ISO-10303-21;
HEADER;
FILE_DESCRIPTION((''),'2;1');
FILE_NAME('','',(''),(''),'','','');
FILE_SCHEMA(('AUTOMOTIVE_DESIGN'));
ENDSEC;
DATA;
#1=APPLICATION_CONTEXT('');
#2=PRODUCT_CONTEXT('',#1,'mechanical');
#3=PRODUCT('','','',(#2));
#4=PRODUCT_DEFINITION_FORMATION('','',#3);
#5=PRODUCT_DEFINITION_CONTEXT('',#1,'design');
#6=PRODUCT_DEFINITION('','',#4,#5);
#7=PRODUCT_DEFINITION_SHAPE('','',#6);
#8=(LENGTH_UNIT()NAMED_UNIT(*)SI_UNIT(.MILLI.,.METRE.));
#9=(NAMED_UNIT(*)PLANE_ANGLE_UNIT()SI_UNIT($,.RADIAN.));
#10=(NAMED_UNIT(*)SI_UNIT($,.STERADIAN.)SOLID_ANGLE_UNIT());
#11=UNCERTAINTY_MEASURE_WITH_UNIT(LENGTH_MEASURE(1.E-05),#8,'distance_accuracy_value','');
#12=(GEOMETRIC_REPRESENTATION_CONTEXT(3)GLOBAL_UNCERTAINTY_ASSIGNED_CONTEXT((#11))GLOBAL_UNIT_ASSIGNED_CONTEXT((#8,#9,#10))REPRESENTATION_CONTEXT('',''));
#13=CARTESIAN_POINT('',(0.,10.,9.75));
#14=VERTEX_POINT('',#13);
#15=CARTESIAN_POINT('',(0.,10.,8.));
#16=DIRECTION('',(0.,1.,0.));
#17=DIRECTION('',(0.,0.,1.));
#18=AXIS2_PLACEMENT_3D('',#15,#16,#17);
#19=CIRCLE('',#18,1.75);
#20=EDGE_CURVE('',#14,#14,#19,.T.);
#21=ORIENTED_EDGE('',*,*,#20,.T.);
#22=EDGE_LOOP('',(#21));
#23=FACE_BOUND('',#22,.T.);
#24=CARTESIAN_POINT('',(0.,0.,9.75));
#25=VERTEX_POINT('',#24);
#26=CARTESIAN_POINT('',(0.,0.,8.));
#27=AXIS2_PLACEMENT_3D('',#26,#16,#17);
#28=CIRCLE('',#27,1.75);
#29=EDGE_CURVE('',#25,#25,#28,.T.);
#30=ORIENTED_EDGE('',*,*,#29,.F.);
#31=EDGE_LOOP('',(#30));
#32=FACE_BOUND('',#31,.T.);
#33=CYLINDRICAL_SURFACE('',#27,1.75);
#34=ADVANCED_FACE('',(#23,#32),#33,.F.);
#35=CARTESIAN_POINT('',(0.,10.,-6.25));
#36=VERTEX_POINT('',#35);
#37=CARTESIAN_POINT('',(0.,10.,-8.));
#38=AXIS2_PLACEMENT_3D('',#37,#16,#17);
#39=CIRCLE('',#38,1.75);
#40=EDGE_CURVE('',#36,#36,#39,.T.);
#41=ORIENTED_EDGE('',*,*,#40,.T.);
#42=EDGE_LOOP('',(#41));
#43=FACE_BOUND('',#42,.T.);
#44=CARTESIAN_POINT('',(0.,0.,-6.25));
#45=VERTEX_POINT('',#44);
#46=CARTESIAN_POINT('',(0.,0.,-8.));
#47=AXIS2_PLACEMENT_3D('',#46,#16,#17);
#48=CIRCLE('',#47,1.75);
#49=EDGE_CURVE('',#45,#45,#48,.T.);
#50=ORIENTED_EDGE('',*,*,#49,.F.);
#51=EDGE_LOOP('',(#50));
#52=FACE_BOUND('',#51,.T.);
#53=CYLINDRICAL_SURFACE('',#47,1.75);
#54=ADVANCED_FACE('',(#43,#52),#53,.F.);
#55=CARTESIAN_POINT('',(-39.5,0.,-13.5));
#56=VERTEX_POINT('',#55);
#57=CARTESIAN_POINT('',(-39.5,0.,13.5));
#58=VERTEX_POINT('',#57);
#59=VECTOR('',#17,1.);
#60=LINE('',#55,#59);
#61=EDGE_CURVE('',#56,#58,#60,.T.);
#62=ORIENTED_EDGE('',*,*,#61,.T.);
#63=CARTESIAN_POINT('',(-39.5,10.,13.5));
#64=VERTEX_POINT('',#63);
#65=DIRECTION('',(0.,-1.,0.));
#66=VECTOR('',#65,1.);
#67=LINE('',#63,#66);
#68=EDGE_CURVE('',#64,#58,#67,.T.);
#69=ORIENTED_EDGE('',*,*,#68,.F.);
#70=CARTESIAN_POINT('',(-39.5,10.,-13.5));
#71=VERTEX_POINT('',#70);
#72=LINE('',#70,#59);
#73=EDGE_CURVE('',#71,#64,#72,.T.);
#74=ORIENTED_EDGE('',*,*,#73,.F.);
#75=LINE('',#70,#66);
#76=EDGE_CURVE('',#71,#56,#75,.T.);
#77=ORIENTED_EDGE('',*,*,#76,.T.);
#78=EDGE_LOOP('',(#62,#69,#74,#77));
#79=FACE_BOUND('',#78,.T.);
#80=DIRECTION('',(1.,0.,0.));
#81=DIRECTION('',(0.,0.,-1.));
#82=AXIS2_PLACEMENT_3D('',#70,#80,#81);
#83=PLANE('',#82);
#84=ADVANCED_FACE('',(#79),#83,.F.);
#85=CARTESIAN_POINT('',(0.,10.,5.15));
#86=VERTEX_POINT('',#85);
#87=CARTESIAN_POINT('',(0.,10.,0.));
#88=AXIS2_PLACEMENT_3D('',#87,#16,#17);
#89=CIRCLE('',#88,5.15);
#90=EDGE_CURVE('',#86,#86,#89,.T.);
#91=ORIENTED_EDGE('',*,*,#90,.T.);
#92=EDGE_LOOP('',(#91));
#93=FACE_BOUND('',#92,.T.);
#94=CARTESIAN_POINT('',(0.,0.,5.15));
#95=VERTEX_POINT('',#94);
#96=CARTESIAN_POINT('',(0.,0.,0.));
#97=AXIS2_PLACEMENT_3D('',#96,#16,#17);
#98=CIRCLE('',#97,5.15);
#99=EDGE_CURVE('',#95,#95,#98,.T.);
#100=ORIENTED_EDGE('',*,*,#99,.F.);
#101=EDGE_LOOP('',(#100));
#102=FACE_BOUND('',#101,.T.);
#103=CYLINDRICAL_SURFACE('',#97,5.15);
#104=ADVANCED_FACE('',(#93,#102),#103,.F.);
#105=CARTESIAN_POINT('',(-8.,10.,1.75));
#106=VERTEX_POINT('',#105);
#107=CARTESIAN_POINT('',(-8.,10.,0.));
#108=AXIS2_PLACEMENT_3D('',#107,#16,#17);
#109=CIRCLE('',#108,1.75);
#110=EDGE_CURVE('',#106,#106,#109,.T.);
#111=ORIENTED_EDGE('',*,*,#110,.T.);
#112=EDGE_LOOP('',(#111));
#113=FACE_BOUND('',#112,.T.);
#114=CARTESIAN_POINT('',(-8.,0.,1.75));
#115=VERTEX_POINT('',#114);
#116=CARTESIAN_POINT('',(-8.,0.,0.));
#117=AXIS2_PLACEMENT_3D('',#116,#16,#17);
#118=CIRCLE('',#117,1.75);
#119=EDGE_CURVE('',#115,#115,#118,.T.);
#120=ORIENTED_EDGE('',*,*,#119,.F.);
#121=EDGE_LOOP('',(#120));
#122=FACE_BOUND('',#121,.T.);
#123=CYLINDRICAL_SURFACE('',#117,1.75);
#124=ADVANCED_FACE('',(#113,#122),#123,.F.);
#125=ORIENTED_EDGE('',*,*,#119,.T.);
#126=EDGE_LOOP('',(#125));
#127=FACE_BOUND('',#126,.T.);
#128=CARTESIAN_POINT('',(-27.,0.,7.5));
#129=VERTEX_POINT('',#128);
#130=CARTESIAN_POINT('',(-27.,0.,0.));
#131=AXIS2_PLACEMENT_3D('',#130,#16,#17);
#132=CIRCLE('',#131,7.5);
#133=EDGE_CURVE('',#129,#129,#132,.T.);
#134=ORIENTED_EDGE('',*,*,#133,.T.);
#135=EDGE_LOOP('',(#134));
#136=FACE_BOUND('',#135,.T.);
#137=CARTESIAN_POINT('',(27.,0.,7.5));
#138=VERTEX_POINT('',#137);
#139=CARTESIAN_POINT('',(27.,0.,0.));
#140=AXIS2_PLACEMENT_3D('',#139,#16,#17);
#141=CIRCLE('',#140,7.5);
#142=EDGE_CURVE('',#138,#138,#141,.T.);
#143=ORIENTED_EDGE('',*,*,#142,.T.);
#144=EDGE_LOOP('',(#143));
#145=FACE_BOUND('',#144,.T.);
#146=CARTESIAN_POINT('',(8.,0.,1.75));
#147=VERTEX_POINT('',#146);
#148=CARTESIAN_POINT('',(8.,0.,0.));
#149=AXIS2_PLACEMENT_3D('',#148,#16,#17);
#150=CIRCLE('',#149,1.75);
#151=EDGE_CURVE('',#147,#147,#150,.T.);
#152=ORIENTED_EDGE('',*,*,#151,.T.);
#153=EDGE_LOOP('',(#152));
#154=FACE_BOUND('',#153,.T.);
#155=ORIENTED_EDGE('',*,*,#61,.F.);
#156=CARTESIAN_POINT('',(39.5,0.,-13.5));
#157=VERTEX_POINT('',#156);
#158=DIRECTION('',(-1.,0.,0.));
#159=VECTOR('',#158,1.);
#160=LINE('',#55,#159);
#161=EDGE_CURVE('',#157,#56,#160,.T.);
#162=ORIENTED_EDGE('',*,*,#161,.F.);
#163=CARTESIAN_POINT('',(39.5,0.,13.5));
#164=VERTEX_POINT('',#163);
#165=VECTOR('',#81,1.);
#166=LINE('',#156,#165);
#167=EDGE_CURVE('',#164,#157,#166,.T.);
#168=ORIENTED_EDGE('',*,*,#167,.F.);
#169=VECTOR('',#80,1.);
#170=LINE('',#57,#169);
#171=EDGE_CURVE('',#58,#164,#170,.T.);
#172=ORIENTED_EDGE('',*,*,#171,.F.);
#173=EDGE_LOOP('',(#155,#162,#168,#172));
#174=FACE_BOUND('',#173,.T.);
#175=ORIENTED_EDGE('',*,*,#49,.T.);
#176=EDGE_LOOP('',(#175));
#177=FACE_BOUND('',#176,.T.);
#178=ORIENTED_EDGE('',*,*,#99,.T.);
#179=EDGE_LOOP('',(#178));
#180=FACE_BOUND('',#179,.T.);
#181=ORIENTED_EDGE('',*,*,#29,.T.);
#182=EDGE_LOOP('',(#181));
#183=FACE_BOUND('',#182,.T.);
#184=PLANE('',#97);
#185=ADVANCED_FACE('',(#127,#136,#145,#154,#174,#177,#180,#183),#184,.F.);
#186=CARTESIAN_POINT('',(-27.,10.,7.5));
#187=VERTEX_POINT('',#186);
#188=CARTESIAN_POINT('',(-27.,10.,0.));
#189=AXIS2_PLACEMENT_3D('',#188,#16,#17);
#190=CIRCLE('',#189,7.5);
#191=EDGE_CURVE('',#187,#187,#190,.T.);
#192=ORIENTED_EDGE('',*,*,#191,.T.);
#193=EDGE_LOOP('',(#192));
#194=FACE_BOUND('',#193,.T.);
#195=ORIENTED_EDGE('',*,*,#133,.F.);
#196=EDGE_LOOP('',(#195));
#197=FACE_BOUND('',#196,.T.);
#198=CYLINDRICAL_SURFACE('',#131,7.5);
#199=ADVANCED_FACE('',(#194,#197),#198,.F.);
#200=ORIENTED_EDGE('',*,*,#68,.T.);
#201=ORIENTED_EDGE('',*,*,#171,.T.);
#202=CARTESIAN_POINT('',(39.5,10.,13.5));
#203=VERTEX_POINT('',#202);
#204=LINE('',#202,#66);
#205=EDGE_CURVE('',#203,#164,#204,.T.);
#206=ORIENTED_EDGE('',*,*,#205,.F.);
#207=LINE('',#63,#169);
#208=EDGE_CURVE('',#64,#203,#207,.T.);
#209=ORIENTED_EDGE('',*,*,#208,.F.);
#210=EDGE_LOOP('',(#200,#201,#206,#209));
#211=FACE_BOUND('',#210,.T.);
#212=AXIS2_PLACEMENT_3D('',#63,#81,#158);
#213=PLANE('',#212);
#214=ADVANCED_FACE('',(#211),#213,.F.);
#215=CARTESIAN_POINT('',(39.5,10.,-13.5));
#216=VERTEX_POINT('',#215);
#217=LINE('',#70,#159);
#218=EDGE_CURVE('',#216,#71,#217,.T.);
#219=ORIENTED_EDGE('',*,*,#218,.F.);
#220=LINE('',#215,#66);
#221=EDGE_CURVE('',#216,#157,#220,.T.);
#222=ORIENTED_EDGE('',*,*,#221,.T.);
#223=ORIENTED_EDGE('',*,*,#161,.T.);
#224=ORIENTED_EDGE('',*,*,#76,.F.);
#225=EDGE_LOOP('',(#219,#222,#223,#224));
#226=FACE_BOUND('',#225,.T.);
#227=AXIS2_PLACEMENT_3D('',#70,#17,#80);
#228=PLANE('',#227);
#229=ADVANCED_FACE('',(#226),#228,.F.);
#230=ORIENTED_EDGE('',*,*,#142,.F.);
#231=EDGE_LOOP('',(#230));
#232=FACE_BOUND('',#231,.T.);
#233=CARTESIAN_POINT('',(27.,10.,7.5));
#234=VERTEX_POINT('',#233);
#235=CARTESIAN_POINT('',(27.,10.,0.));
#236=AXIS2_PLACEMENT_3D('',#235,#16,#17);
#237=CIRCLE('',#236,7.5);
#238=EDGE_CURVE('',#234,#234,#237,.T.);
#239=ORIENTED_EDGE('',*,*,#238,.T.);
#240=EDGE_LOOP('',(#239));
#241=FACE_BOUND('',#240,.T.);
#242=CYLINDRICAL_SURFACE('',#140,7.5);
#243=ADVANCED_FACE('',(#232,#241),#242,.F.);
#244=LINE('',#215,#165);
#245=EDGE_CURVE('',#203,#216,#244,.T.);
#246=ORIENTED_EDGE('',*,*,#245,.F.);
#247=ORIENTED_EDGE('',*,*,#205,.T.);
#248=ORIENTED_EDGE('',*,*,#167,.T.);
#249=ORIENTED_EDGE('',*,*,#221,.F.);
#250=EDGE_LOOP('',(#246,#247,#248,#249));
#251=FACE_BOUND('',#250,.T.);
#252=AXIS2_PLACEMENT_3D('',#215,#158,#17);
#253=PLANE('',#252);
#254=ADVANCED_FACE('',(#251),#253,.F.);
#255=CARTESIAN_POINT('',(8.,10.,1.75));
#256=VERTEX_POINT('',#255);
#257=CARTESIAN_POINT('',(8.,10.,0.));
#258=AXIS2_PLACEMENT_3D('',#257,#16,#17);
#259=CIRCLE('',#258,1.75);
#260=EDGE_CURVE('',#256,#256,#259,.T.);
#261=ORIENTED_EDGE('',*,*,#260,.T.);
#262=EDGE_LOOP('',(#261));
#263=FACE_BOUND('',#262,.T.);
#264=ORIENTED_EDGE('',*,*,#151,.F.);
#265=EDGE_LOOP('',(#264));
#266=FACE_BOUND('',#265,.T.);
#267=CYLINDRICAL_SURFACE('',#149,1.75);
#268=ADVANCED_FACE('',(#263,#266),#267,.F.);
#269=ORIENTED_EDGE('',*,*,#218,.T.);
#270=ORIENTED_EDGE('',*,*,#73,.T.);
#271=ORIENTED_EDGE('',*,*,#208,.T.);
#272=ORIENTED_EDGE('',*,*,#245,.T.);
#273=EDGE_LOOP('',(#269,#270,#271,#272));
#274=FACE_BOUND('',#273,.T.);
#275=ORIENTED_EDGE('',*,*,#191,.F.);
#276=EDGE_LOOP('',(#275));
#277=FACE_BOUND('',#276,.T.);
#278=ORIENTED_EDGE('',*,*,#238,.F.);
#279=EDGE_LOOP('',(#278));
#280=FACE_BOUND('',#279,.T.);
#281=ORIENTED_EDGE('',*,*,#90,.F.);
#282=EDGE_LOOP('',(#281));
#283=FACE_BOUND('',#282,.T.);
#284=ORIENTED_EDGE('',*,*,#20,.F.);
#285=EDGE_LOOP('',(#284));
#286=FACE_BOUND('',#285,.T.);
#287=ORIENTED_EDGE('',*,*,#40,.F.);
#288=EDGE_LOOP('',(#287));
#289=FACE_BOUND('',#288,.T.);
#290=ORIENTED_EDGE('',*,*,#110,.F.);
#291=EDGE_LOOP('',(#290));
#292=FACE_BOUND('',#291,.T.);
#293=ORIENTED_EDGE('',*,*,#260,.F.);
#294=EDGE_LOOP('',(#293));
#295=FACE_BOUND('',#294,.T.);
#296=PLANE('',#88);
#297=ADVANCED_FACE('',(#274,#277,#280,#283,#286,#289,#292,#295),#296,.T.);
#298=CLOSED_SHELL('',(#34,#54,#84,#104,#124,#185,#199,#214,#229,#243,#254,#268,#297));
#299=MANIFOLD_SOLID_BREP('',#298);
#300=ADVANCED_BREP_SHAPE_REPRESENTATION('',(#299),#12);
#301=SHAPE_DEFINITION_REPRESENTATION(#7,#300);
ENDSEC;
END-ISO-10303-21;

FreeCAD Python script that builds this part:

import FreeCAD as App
import Part
import Sketcher
from FreeCAD import Vector
Q = App.Units.Quantity


def add_polygon(sketch, points):
    """Adds a closed chain of lines whose ends are joined by coincident constraints."""
    first, n = sketch.GeometryCount, len(points)
    for a, b in zip(points, points[1:] + points[:1]):
        sketch.addGeometry(Part.LineSegment(App.Vector(*a, 0), App.Vector(*b, 0)), False)
    for i in range(n):
        sketch.addConstraint(Sketcher.Constraint("Coincident", first + i, 2, first + (i + 1) % n, 1))

doc = App.newDocument("Part")
params = doc.addObject("Spreadsheet::Sheet", "Params")
for row, (alias, value) in enumerate([
    ("sketch1_width", "79 mm"),
    ("sketch1_height", "27 mm"),
    ("pad1_length", "10 mm"),
    ("sketch2_diameter", "15 mm"),
    ("sketch3_diameter", "10.3 mm"),
    ("sketch4_diameter", "3.5 mm"),
], start=1):
    params.set(f"A{row}", alias)
    params.set(f"B{row}", "=" + value)
    params.setAlias(f"B{row}", alias)

body = doc.addObject("PartDesign::Body", "Body")

# Sketch on XZ plane
sketch1 = doc.addObject("Sketcher::SketchObject", "Sketch")
body.addObject(sketch1)
sketch1.AttachmentSupport = (doc.XZ_Plane, [""])
sketch1.MapMode = "FlatFace"
add_polygon(sketch1, [(-40, -14), (-40, 14), (40, 14), (40, -14)])  # lines 0-3
sketch1.addConstraint([
    Sketcher.Constraint("Vertical", 0),
    Sketcher.Constraint("Horizontal", 1),
    Sketcher.Constraint("Vertical", 2),
    Sketcher.Constraint("Horizontal", 3),
    Sketcher.Constraint("Symmetric", 0, 2, 2, 2, -1, 1),
    Sketcher.Constraint("DistanceX", 1, 1, 1, 2, Q("79 mm")),
    Sketcher.Constraint("DistanceY", 0, 1, 0, 2, Q("27 mm")),
])
sketch1.setExpression("Constraints[9]", "Params.sketch1_width")
sketch1.setExpression("Constraints[10]", "Params.sketch1_height")
pad1 = doc.addObject("PartDesign::Pad", "Pad")
body.addObject(pad1)
pad1.Profile = sketch1
pad1.setExpression("Length", "Params.pad1_length")
pad1.Reversed = True

# Sketch on XZ plane
sketch2 = doc.addObject("Sketcher::SketchObject", "Sketch001")
body.addObject(sketch2)
sketch2.AttachmentSupport = (doc.XZ_Plane, [""])
sketch2.MapMode = "FlatFace"
sketch2.AttachmentOffset = App.Placement(Vector(0, 0, -10), App.Rotation())
sketch2.addGeometry([
    Part.Circle(Vector(-27, 0, 0), Vector(0, 0, 1), 8),
    Part.Circle(Vector(27, 0, 0), Vector(0, 0, 1), 8),
], False)
sketch2.addConstraint([
    Sketcher.Constraint("Equal", 0, 1),
    Sketcher.Constraint("Symmetric", 0, 3, 1, 3, -1, 1),
    Sketcher.Constraint("PointOnObject", 0, 3, -1),
    Sketcher.Constraint("Diameter", 0, Q("15 mm")),
    Sketcher.Constraint("DistanceX", 0, 3, -1, 1, Q("27 mm")),
])
sketch2.setExpression("Constraints[3]", "Params.sketch2_diameter")
pocket1 = doc.addObject("PartDesign::Pocket", "Pocket")
body.addObject(pocket1)
pocket1.Profile = sketch2
pocket1.Type = "ThroughAll"
pocket1.Reversed = True

# Sketch on XZ plane
sketch3 = doc.addObject("Sketcher::SketchObject", "Sketch002")
body.addObject(sketch3)
sketch3.AttachmentSupport = (doc.XZ_Plane, [""])
sketch3.MapMode = "FlatFace"
sketch3.AttachmentOffset = App.Placement(Vector(0, 0, -10), App.Rotation())
sketch3.addGeometry(Part.Circle(Vector(0, 0, 0), Vector(0, 0, 1), 5), False)
sketch3.addConstraint([
    Sketcher.Constraint("Coincident", 0, 3, -1, 1),
    Sketcher.Constraint("Diameter", 0, Q("10.3 mm")),
])
sketch3.setExpression("Constraints[1]", "Params.sketch3_diameter")
pocket2 = doc.addObject("PartDesign::Pocket", "Pocket001")
body.addObject(pocket2)
pocket2.Profile = sketch3
pocket2.Type = "ThroughAll"
pocket2.Reversed = True

# Sketch on XZ plane
sketch4 = doc.addObject("Sketcher::SketchObject", "Sketch003")
body.addObject(sketch4)
sketch4.AttachmentSupport = (doc.XZ_Plane, [""])
sketch4.MapMode = "FlatFace"
sketch4.AttachmentOffset = App.Placement(Vector(0, 0, -10), App.Rotation())
sketch4.addGeometry([
    Part.Circle(Vector(8, 0, 0), Vector(0, 0, 1), 1.8),
    Part.Circle(Vector(0, 8, 0), Vector(0, 0, 1), 1.8),
    Part.Circle(Vector(-8, 0, 0), Vector(0, 0, 1), 1.8),
    Part.Circle(Vector(0, -8, 0), Vector(0, 0, 1), 1.8),
], False)
sketch4.addConstraint([
    Sketcher.Constraint("Equal", 0, 1),
    Sketcher.Constraint("Equal", 1, 2),
    Sketcher.Constraint("Equal", 2, 3),
    Sketcher.Constraint("Symmetric", 0, 3, 2, 3, -1, 1),
    Sketcher.Constraint("Symmetric", 1, 3, 3, 3, -1, 1),
    Sketcher.Constraint("PointOnObject", 0, 3, -1),
    Sketcher.Constraint("PointOnObject", 1, 3, -2),
    Sketcher.Constraint("Diameter", 0, Q("3.5 mm")),
    Sketcher.Constraint("DistanceX", -1, 1, 0, 3, Q("8 mm")),
    Sketcher.Constraint("DistanceY", -1, 1, 1, 3, Q("8 mm")),
])
sketch4.setExpression("Constraints[7]", "Params.sketch4_diameter")
pocket3 = doc.addObject("PartDesign::Pocket", "Pocket002")
body.addObject(pocket3)
pocket3.Profile = sketch4
pocket3.Type = "ThroughAll"
pocket3.Reversed = True

doc.recompute()
